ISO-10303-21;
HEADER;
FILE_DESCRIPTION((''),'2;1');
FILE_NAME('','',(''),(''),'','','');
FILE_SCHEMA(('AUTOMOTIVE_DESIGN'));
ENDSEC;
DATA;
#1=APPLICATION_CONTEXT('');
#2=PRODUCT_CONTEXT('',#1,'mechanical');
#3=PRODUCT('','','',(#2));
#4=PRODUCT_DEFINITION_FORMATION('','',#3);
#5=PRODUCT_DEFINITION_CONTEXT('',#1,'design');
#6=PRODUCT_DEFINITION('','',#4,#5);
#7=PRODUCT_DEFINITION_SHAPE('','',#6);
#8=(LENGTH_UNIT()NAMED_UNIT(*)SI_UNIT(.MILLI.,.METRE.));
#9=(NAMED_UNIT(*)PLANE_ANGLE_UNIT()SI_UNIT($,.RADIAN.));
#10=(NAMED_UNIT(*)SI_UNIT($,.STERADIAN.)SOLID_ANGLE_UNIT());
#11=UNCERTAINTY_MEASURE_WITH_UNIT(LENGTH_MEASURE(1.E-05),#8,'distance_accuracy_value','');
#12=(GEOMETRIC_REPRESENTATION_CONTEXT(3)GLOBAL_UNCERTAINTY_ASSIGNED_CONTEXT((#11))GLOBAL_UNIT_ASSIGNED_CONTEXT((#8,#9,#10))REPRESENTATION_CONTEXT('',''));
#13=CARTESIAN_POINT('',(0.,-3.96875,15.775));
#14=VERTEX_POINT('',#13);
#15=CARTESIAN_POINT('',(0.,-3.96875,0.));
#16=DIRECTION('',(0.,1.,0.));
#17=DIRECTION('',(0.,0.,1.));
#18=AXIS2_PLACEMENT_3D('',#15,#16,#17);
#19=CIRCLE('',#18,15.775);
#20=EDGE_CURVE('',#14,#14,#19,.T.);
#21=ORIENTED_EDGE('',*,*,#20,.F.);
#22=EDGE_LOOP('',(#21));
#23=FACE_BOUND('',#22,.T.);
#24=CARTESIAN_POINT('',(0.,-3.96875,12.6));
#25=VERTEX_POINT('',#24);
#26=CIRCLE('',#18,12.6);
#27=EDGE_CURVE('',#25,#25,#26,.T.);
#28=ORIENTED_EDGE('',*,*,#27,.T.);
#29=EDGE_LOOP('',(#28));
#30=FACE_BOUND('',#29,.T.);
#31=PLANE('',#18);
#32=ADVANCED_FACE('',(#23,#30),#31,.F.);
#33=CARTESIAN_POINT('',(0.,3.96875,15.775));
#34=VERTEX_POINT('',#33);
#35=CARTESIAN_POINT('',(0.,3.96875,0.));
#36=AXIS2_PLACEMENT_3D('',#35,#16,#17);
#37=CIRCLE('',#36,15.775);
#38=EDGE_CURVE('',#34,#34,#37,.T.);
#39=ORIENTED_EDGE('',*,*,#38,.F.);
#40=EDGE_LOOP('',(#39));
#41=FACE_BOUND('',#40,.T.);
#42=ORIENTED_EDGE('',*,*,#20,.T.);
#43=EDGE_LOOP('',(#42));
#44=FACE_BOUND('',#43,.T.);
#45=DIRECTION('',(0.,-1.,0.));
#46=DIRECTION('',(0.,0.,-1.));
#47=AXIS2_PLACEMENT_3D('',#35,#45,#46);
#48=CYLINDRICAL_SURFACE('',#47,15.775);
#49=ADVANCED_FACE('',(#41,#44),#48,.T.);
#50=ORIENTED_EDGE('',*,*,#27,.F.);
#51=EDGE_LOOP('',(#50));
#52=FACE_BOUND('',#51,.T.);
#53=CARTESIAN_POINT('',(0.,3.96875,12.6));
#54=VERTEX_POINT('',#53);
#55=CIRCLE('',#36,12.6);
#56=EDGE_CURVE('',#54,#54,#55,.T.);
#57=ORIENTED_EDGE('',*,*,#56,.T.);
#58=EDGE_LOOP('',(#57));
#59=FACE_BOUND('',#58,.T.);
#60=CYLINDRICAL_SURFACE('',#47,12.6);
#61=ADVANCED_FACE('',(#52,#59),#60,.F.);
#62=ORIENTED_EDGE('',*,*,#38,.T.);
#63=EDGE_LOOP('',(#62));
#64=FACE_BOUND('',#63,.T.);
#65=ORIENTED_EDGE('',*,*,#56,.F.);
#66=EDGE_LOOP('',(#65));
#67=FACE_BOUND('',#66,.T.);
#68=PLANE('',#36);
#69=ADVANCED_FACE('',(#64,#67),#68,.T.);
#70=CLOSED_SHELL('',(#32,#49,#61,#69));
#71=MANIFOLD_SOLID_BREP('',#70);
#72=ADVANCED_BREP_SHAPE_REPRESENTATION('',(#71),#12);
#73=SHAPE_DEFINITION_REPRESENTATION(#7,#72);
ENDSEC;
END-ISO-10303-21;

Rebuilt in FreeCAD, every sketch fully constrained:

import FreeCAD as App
import Part
import Sketcher
from FreeCAD import Vector
Q = App.Units.Quantity

doc = App.newDocument("Part")
body = doc.addObject("PartDesign::Body", "Body")

# Sketch on XZ plane
sketch1 = body.newObject("Sketcher::SketchObject", "Sketch")
sketch1.AttachmentSupport = (doc.getObject("XZ_Plane"), [""])
sketch1.MapMode = "FlatFace"
sketch1.addGeometry([
    Part.Circle(Vector(0, 0, 0), Vector(0, 0, 1), 16),
    Part.Circle(Vector(0, 0, 0), Vector(0, 0, 1), 13),
], False)
sketch1.addConstraint([
    Sketcher.Constraint("Coincident", 0, 3, -1, 1),
    Sketcher.Constraint("Coincident", 1, 3, -1, 1),
    Sketcher.Constraint("Diameter", 1, Q("25.2 mm")),
    Sketcher.Constraint("Diameter", 0, Q("31.55 mm")),
])
pad1 = body.newObject("PartDesign::Pad", "Pad")
pad1.Profile = sketch1
pad1.Length = 7.9375
pad1.Midplane = True

doc.recompute()
